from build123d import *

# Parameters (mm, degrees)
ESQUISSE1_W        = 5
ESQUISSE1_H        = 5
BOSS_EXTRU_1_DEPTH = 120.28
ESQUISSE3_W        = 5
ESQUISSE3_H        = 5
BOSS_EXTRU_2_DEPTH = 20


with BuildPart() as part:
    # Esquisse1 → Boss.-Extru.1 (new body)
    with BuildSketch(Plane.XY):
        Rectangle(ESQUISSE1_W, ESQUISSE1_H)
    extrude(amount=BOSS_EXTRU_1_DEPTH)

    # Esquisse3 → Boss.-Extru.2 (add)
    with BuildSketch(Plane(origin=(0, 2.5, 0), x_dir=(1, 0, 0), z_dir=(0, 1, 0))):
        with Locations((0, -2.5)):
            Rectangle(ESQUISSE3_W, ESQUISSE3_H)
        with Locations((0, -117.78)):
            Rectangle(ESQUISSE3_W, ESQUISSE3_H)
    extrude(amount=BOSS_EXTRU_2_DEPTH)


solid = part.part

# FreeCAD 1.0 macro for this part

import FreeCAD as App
import Part
import Sketcher
from FreeCAD import Vector
Q = App.Units.Quantity


def add_polygon(sketch, points):
    """Adds a closed chain of lines whose ends are joined by coincident constraints."""
    first, n = sketch.GeometryCount, len(points)
    for a, b in zip(points, points[1:] + points[:1]):
        sketch.addGeometry(Part.LineSegment(App.Vector(*a, 0), App.Vector(*b, 0)), False)
    for i in range(n):
        sketch.addConstraint(Sketcher.Constraint("Coincident", first + i, 2, first + (i + 1) % n, 1))

doc = App.newDocument("Part")
body = doc.addObject("PartDesign::Body", "Body")

sketch1 = doc.addObject("Sketcher::SketchObject", "Sketch")
body.addObject(sketch1)
sketch1.AttachmentSupport = (doc.XY_Plane, [""])
sketch1.MapMode = "FlatFace"
add_polygon(sketch1, [(-2.5, 2.5), (-2.5, -2.5), (2.5, -2.5), (2.5, 2.5)])
sketch1.addConstraint([
    Sketcher.Constraint("Vertical", 0),
    Sketcher.Constraint("Horizontal", 1),
    Sketcher.Constraint("Vertical", 2),
    Sketcher.Constraint("Horizontal", 3),
    Sketcher.Constraint("Symmetric", 0, 2, 2, 2, -1, 1),
    Sketcher.Constraint("Equal", 3, 0),
    Sketcher.Constraint("DistanceX", 1, 1, 1, 2, Q("5 mm")),
])
pad1 = doc.addObject("PartDesign::Pad", "Pad")
body.addObject(pad1)
pad1.Profile = sketch1
pad1.Length = 120.28

sketch2 = doc.addObject("Sketcher::SketchObject", "Sketch001")
body.addObject(sketch2)
sketch2.AttachmentSupport = (doc.XZ_Plane, [""])
sketch2.MapMode = "FlatFace"
sketch2.AttachmentOffset = App.Placement(Vector(0, 0, -2.5), App.Rotation())
add_polygon(sketch2, [(-2.5, 0), (-2.5, 5), (2.5, 5), (2.5, 0)])
add_polygon(sketch2, [(-2.5, 115.28), (-2.5, 120.28), (2.5, 120.28), (2.5, 115.28)])
sketch2.addConstraint([
    Sketcher.Constraint("Vertical", 0),
    Sketcher.Constraint("Horizontal", 1),
    Sketcher.Constraint("Vertical", 2),
    Sketcher.Constraint("Horizontal", 3),
    Sketcher.Constraint("Vertical", 4),
    Sketcher.Constraint("Horizontal", 5),
    Sketcher.Constraint("Vertical", 6),
    Sketcher.Constraint("Horizontal", 7),
    Sketcher.Constraint("Symmetric", 2, 2, 3, 2, -1, 1),
    Sketcher.Constraint("Vertical", 3, 2, 4, 2),
    Sketcher.Constraint("Vertical", 2, 2, 5, 2),
    Sketcher.Constraint("Equal", 7, 0),
    Sketcher.Constraint("Equal", 2, 4),
    Sketcher.Constraint("DistanceX", 1, 1, 1, 2, Q("5 mm")),
    Sketcher.Constraint("DistanceY", -1, 1, 4, 2, Q("120.28 mm")),
])
pad2 = doc.addObject("PartDesign::Pad", "Pad001")
body.addObject(pad2)
pad2.Profile = sketch2
pad2.Length = 20
pad2.Reversed = True

doc.recompute()
